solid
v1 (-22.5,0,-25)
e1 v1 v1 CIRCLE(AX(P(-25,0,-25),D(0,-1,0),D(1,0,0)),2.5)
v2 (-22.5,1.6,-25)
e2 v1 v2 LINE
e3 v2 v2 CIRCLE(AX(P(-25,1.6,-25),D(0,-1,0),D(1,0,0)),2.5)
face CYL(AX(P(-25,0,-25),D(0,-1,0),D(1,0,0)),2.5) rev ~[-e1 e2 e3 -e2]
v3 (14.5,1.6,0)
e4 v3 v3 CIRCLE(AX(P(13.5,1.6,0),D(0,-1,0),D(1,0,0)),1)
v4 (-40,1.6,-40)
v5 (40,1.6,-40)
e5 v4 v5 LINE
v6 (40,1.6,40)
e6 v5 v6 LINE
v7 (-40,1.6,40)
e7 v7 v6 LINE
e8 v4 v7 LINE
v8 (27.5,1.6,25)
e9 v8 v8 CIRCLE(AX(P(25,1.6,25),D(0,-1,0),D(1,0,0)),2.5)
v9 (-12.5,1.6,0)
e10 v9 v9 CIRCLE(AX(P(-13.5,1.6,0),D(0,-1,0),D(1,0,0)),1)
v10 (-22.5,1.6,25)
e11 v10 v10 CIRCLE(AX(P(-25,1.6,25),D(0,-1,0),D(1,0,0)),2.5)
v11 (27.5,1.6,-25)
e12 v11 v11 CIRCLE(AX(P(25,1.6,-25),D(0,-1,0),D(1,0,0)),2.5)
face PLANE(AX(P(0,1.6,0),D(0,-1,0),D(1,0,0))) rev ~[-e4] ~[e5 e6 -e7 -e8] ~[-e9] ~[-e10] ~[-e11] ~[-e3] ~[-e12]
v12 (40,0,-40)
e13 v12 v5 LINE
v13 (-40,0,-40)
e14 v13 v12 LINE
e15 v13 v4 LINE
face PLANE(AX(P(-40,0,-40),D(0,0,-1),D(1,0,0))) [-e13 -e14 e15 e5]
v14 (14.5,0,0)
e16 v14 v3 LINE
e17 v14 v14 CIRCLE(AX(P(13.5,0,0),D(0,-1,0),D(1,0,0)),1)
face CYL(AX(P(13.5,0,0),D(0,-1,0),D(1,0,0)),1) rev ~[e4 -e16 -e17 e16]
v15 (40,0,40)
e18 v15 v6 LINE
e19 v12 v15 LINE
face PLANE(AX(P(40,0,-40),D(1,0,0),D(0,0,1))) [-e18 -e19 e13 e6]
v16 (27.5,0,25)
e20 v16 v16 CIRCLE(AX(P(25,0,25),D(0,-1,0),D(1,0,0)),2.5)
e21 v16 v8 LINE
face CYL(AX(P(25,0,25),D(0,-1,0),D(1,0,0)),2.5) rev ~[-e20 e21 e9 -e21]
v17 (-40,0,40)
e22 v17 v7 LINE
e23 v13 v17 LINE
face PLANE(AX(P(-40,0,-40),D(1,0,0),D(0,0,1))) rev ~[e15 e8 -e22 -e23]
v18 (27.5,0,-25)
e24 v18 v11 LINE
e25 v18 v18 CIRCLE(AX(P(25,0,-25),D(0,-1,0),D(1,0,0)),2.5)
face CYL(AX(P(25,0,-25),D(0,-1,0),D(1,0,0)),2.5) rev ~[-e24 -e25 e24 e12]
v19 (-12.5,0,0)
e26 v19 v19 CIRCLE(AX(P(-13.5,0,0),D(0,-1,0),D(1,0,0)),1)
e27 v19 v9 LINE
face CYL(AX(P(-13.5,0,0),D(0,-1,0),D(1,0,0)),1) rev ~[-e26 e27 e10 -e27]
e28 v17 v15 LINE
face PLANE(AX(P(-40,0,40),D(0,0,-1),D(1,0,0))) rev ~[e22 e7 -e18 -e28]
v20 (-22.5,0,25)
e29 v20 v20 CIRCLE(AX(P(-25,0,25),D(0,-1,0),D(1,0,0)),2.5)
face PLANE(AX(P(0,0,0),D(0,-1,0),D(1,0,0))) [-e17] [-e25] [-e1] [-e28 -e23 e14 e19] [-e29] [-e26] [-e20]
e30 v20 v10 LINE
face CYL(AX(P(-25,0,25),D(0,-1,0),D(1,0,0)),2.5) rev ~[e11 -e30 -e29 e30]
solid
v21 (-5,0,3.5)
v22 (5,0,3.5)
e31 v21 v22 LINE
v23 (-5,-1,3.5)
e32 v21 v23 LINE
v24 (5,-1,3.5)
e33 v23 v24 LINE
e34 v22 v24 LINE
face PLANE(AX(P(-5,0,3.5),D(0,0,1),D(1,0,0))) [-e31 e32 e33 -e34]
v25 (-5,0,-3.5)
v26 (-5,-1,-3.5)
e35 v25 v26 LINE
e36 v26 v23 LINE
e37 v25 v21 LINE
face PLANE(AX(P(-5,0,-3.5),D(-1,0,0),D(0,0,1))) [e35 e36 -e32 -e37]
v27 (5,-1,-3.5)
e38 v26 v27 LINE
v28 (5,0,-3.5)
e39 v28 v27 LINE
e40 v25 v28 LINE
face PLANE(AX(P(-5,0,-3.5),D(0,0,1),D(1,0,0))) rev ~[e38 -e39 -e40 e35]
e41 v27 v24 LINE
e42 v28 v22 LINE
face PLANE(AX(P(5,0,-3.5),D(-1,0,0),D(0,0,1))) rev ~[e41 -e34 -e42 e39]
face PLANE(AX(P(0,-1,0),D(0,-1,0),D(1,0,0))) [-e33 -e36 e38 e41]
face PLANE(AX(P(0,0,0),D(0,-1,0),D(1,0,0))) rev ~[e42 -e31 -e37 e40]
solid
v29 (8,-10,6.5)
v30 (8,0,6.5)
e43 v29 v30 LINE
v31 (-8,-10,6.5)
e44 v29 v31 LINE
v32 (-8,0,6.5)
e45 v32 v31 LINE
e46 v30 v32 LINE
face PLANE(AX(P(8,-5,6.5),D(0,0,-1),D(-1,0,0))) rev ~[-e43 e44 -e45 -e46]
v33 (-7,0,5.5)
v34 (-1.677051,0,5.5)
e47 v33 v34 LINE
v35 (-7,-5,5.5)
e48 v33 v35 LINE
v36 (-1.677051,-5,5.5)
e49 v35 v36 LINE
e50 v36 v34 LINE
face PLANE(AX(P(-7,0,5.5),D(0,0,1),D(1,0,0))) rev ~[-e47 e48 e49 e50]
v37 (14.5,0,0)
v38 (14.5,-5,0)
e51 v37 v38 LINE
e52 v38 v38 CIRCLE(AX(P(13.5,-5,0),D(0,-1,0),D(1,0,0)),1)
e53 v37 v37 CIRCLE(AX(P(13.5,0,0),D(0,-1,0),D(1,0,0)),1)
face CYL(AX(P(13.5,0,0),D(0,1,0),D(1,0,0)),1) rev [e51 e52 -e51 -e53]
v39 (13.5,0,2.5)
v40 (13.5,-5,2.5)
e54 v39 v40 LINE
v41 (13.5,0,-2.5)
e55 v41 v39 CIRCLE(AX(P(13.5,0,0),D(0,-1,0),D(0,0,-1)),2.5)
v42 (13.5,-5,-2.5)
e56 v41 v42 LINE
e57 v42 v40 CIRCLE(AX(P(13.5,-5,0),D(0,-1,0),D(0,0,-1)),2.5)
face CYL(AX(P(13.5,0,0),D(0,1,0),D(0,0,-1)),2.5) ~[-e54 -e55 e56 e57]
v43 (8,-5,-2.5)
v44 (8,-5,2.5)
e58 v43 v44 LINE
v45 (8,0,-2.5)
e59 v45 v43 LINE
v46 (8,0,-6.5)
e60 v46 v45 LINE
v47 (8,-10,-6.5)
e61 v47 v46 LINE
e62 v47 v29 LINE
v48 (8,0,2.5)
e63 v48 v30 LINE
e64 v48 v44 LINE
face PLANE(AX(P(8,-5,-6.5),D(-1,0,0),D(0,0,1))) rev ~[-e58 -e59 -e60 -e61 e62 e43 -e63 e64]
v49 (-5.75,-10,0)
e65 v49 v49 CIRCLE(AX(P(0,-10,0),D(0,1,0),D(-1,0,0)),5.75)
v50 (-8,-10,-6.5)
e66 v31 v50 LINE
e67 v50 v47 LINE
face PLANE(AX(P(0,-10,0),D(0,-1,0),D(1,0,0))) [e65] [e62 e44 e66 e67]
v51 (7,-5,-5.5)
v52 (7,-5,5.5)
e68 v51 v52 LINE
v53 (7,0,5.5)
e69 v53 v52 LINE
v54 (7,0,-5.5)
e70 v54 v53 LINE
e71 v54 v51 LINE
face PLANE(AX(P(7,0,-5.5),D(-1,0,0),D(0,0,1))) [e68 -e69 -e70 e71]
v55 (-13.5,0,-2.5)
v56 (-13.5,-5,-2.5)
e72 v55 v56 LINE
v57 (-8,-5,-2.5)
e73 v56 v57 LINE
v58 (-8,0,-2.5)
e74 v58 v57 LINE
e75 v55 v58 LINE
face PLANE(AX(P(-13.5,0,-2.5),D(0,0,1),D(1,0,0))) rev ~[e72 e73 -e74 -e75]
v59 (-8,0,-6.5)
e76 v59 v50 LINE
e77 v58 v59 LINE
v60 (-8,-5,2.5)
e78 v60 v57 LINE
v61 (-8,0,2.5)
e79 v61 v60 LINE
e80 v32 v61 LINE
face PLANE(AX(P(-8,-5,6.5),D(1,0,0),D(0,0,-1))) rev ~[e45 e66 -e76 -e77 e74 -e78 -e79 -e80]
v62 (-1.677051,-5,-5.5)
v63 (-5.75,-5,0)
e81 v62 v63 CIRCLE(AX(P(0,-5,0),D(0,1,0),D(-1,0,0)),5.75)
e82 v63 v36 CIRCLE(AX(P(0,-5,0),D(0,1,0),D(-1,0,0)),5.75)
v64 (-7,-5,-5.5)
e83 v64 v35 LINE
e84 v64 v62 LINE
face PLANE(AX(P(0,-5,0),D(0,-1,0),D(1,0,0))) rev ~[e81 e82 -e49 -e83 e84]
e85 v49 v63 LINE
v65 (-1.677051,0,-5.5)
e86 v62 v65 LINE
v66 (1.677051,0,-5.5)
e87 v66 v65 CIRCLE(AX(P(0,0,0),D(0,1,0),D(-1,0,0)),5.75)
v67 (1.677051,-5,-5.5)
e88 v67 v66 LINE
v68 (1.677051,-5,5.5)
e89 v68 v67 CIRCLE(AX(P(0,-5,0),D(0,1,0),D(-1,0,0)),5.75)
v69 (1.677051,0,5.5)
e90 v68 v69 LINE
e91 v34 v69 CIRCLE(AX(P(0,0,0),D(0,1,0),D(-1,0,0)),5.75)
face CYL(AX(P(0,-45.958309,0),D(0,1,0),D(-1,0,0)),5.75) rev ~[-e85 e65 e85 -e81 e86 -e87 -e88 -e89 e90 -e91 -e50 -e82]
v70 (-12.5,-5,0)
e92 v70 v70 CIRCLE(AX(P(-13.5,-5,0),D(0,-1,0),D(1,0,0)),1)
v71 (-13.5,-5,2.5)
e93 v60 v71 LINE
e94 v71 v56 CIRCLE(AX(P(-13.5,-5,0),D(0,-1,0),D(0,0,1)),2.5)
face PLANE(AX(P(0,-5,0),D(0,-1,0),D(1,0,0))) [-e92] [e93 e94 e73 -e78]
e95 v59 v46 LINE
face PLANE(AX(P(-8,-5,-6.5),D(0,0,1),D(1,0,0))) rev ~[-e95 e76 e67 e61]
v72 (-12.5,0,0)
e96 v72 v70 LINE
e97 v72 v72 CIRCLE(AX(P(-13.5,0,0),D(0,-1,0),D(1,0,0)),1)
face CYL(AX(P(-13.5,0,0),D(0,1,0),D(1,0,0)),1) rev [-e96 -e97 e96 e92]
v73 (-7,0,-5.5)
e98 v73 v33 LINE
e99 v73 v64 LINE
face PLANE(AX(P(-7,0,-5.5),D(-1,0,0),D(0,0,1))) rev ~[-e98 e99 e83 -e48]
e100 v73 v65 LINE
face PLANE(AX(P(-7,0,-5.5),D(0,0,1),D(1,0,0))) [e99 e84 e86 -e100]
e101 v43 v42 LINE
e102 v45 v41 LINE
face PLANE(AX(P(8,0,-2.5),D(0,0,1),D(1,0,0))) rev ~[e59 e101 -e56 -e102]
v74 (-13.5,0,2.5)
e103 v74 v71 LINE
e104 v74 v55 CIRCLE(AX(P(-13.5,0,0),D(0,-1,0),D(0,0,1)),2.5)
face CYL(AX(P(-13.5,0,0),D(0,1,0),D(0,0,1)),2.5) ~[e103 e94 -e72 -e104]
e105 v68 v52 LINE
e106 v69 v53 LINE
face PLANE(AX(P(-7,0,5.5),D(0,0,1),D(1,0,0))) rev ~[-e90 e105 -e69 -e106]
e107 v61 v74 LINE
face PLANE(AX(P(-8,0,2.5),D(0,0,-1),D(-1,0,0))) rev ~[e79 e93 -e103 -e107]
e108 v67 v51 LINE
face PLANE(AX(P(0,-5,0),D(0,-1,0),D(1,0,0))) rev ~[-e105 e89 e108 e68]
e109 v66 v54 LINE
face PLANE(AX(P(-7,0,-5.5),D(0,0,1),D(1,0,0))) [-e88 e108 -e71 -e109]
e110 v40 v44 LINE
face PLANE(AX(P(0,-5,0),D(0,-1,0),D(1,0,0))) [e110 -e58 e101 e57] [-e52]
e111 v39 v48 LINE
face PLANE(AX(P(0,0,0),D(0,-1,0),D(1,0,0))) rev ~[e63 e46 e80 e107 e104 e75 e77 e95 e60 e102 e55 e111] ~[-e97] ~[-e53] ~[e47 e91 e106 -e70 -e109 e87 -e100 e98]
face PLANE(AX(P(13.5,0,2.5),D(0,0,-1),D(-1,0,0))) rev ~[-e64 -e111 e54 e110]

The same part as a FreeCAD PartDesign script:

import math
import FreeCAD as App
import Part
import Sketcher
Q = App.Units.Quantity


def add_polygon(sketch, points):
    """Adds a closed chain of lines whose ends are joined by coincident constraints."""
    first, n = sketch.GeometryCount, len(points)
    for a, b in zip(points, points[1:] + points[:1]):
        sketch.addGeometry(Part.LineSegment(App.Vector(*a, 0), App.Vector(*b, 0)), False)
    for i in range(n):
        sketch.addConstraint(Sketcher.Constraint("Coincident", first + i, 2, first + (i + 1) % n, 1))

doc = App.newDocument("Part")
params = doc.addObject("Spreadsheet::Sheet", "Params")
for row, (alias, value) in enumerate([
    ("sketch1_diameter", "5 mm"),
    ("sketch1_diameter2", "2 mm"),
    ("sketch1_width", "80 mm"),
    ("pad1_length", "1.6 mm"),
    ("sketch2_width", "10 mm"),
    ("sketch2_height", "7 mm"),
    ("pad2_length", "1 mm"),
    ("sketch3_diameter", "2 mm"),
    ("sketch3_radius", "2.5 mm"),
    ("sketch3_width", "16 mm"),
    ("sketch3_width2", "14 mm"),
    ("sketch3_height", "4 mm"),
    ("pad3_length", "5 mm"),
    ("sketch4_width", "16 mm"),
    ("sketch4_height", "13 mm"),
    ("pad4_length", "5 mm"),
    ("sketch5_diameter", "11.5 mm"),
    ("hole_diameter", "11.5 mm"),
], start=1):
    params.set(f"A{row}", alias)
    params.set(f"B{row}", "=" + value)
    params.setAlias(f"B{row}", alias)

body = doc.addObject("PartDesign::Body", "Body")

# Sketch on XZ plane
sketch1 = doc.addObject("Sketcher::SketchObject", "Sketch")
body.addObject(sketch1)
sketch1.AttachmentSupport = (doc.XZ_Plane, [""])
sketch1.MapMode = "FlatFace"
add_polygon(sketch1, [(-40, 40), (-40, -40), (40, -40), (40, 40)])  # lines 0-3
sketch1.addGeometry(Part.Circle(App.Vector(-25, -25, 0), App.Vector(0, 0, 1), 2.5), False)  # 4
sketch1.addGeometry(Part.Circle(App.Vector(25, -25, 0), App.Vector(0, 0, 1), 2.5), False)  # 5
sketch1.addGeometry(Part.Circle(App.Vector(-13.5, 0, 0), App.Vector(0, 0, 1), 1), False)  # 6
sketch1.addGeometry(Part.Circle(App.Vector(-25, 25, 0), App.Vector(0, 0, 1), 2.5), False)  # 7
sketch1.addGeometry(Part.Circle(App.Vector(13.5, 0, 0), App.Vector(0, 0, 1), 1), False)  # 8
sketch1.addGeometry(Part.Circle(App.Vector(25, 25, 0), App.Vector(0, 0, 1), 2.5), False)  # 9
sketch1.addConstraint(Sketcher.Constraint("Vertical", 0))
sketch1.addConstraint(Sketcher.Constraint("Horizontal", 1))
sketch1.addConstraint(Sketcher.Constraint("Vertical", 2))
sketch1.addConstraint(Sketcher.Constraint("Horizontal", 3))
sketch1.addConstraint(Sketcher.Constraint("Equal", 4, 5))
sketch1.addConstraint(Sketcher.Constraint("Equal", 5, 7))
sketch1.addConstraint(Sketcher.Constraint("Equal", 6, 8))
sketch1.addConstraint(Sketcher.Constraint("Equal", 7, 9))
sketch1.addConstraint(Sketcher.Constraint("Symmetric", 5, 3, 7, 3, -1, 1))
sketch1.addConstraint(Sketcher.Constraint("Symmetric", 6, 3, 8, 3, -1, 1))
sketch1.addConstraint(Sketcher.Constraint("Symmetric", 4, 3, 9, 3, -1, 1))
sketch1.addConstraint(Sketcher.Constraint("Symmetric", 0, 2, 2, 2, -1, 1))
sketch1.addConstraint(Sketcher.Constraint("Symmetric", 4, 3, 5, 3, -2))
sketch1.addConstraint(Sketcher.Constraint("PointOnObject", 6, 3, -1))
sketch1.addConstraint(Sketcher.Constraint("Equal", 3, 0))
sketch1.addConstraint(Sketcher.Constraint("Diameter", 4, Q("5 mm")))
sketch1.addConstraint(Sketcher.Constraint("Diameter", 6, Q("2 mm")))
sketch1.addConstraint(Sketcher.Constraint("DistanceX", 1, 1, 1, 2, Q("80 mm")))
sketch1.addConstraint(Sketcher.Constraint("DistanceX", 4, 3, -1, 1, Q("25 mm")))
sketch1.addConstraint(Sketcher.Constraint("DistanceY", 4, 3, -1, 1, Q("25 mm")))
sketch1.addConstraint(Sketcher.Constraint("DistanceX", 6, 3, 8, 3, Q("27 mm")))
sketch1.setExpression("Constraints[19]", "Params.sketch1_diameter")
sketch1.setExpression("Constraints[20]", "Params.sketch1_diameter2")
sketch1.setExpression("Constraints[21]", "Params.sketch1_width")
pad1 = doc.addObject("PartDesign::Pad", "Pad")
body.addObject(pad1)
pad1.Profile = sketch1
pad1.setExpression("Length", "Params.pad1_length")
pad1.Reversed = True
body2 = doc.addObject("PartDesign::Body", "Body001")

# Sketch on XZ plane
sketch2 = doc.addObject("Sketcher::SketchObject", "Sketch001")
body2.addObject(sketch2)
sketch2.AttachmentSupport = (doc.getObject("XZ_Plane001"), [""])
sketch2.MapMode = "FlatFace"
add_polygon(sketch2, [(-5, 4), (-5, -4), (5, -4), (5, 4)])  # lines 0-3
sketch2.addConstraint(Sketcher.Constraint("Vertical", 0))
sketch2.addConstraint(Sketcher.Constraint("Horizontal", 1))
sketch2.addConstraint(Sketcher.Constraint("Vertical", 2))
sketch2.addConstraint(Sketcher.Constraint("Horizontal", 3))
sketch2.addConstraint(Sketcher.Constraint("Symmetric", 0, 2, 2, 2, -1, 1))
sketch2.addConstraint(Sketcher.Constraint("DistanceX", 1, 1, 1, 2, Q("10 mm")))
sketch2.addConstraint(Sketcher.Constraint("DistanceY", 0, 2, 0, 1, Q("7 mm")))
sketch2.setExpression("Constraints[9]", "Params.sketch2_width")
sketch2.setExpression("Constraints[10]", "Params.sketch2_height")
pad2 = doc.addObject("PartDesign::Pad", "Pad001")
body2.addObject(pad2)
pad2.Profile = sketch2
pad2.setExpression("Length", "Params.pad2_length")
body3 = doc.addObject("PartDesign::Body", "Body002")

# Sketch on XZ plane
sketch3 = doc.addObject("Sketcher::SketchObject", "Sketch002")
body3.addObject(sketch3)
sketch3.AttachmentSupport = (doc.getObject("XZ_Plane002"), [""])
sketch3.MapMode = "FlatFace"
sketch3.addGeometry(Part.LineSegment(App.Vector(8, -2.5, 0), App.Vector(13.5, -2.5, 0)), False)  # 0
sketch3.addGeometry(Part.ArcOfCircle(Part.Circle(App.Vector(13.5, 0, 0), App.Vector(0, 0, 1), 2.5), math.radians(-90), math.radians(90)), False)  # 1
sketch3.addGeometry(Part.LineSegment(App.Vector(13.5, 2.5, 0), App.Vector(8, 2.5, 0)), False)  # 2
sketch3.addGeometry(Part.LineSegment(App.Vector(8, 2.5, 0), App.Vector(8, 6.5, 0)), False)  # 3
sketch3.addGeometry(Part.LineSegment(App.Vector(8, 6.5, 0), App.Vector(-8, 6.5, 0)), False)  # 4
sketch3.addGeometry(Part.LineSegment(App.Vector(-8, 6.5, 0), App.Vector(-8, 2.5, 0)), False)  # 5
sketch3.addGeometry(Part.LineSegment(App.Vector(-8, 2.5, 0), App.Vector(-13.5, 2.5, 0)), False)  # 6
sketch3.addGeometry(Part.ArcOfCircle(Part.Circle(App.Vector(-13.5, 0, 0), App.Vector(0, 0, 1), 2.5), math.radians(90), math.radians(270)), False)  # 7
sketch3.addGeometry(Part.LineSegment(App.Vector(-13.5, -2.5, 0), App.Vector(-8, -2.5, 0)), False)  # 8
sketch3.addGeometry(Part.LineSegment(App.Vector(-8, -2.5, 0), App.Vector(-8, -6.5, 0)), False)  # 9
sketch3.addGeometry(Part.LineSegment(App.Vector(-8, -6.5, 0), App.Vector(8, -6.5, 0)), False)  # 10
sketch3.addGeometry(Part.LineSegment(App.Vector(8, -6.5, 0), App.Vector(8, -2.5, 0)), False)  # 11
sketch3.addGeometry(Part.Circle(App.Vector(-13.5, 0, 0), App.Vector(0, 0, 1), 1), False)  # 12
add_polygon(sketch3, [(7, -5.5), (-7, -5.5), (-7, 5.5), (7, 5.5)])  # lines 13-16
sketch3.addGeometry(Part.Circle(App.Vector(13.5, 0, 0), App.Vector(0, 0, 1), 1), False)  # 17
sketch3.addConstraint(Sketcher.Constraint("Tangent", 0, 2, 1, 1))
sketch3.addConstraint(Sketcher.Constraint("Tangent", 1, 2, 2, 1))
sketch3.addConstraint(Sketcher.Constraint("Coincident", 2, 2, 3, 1))
sketch3.addConstraint(Sketcher.Constraint("Coincident", 3, 2, 4, 1))
sketch3.addConstraint(Sketcher.Constraint("Coincident", 4, 2, 5, 1))
sketch3.addConstraint(Sketcher.Constraint("Coincident", 5, 2, 6, 1))
sketch3.addConstraint(Sketcher.Constraint("Tangent", 6, 2, 7, 1))
sketch3.addConstraint(Sketcher.Constraint("Tangent", 7, 2, 8, 1))
sketch3.addConstraint(Sketcher.Constraint("Coincident", 8, 2, 9, 1))
sketch3.addConstraint(Sketcher.Constraint("Coincident", 9, 2, 10, 1))
sketch3.addConstraint(Sketcher.Constraint("Coincident", 10, 2, 11, 1))
sketch3.addConstraint(Sketcher.Constraint("Coincident", 11, 2, 0, 1))
sketch3.addConstraint(Sketcher.Constraint("Horizontal", 0))
sketch3.addConstraint(Sketcher.Constraint("Horizontal", 2))
sketch3.addConstraint(Sketcher.Constraint("Vertical", 3))
sketch3.addConstraint(Sketcher.Constraint("Horizontal", 4))
sketch3.addConstraint(Sketcher.Constraint("Vertical", 5))
sketch3.addConstraint(Sketcher.Constraint("Horizontal", 6))
sketch3.addConstraint(Sketcher.Constraint("Horizontal", 8))
sketch3.addConstraint(Sketcher.Constraint("Vertical", 9))
sketch3.addConstraint(Sketcher.Constraint("Horizontal", 10))
sketch3.addConstraint(Sketcher.Constraint("Vertical", 11))
sketch3.addConstraint(Sketcher.Constraint("Horizontal", 13))
sketch3.addConstraint(Sketcher.Constraint("Vertical", 14))
sketch3.addConstraint(Sketcher.Constraint("Horizontal", 15))
sketch3.addConstraint(Sketcher.Constraint("Vertical", 16))
sketch3.addConstraint(Sketcher.Constraint("Coincident", 12, 3, 7, 3))
sketch3.addConstraint(Sketcher.Constraint("Coincident", 17, 3, 1, 3))
sketch3.addConstraint(Sketcher.Constraint("Equal", 1, 7))
sketch3.addConstraint(Sketcher.Constraint("Equal", 12, 17))
sketch3.addConstraint(Sketcher.Constraint("Symmetric", 1, 3, 7, 3, -1, 1))
sketch3.addConstraint(Sketcher.Constraint("Symmetric", 3, 2, 9, 2, -1, 1))
sketch3.addConstraint(Sketcher.Constraint("Symmetric", 13, 2, 15, 2, -1, 1))
sketch3.addConstraint(Sketcher.Constraint("Symmetric", 2, 2, 5, 2, -2))
sketch3.addConstraint(Sketcher.Constraint("Vertical", 3, 2, 10, 2))
sketch3.addConstraint(Sketcher.Constraint("Diameter", 12, Q("2 mm")))
sketch3.addConstraint(Sketcher.Constraint("Radius", 1, Q("2.5 mm")))
sketch3.addConstraint(Sketcher.Constraint("DistanceX", 4, 2, 4, 1, Q("16 mm")))
sketch3.addConstraint(Sketcher.Constraint("DistanceX", 13, 2, 13, 1, Q("14 mm")))
sketch3.addConstraint(Sketcher.Constraint("DistanceY", 3, 1, 3, 2, Q("4 mm")))
sketch3.addConstraint(Sketcher.Constraint("DistanceY", 14, 1, 14, 2, Q("11 mm")))
sketch3.addConstraint(Sketcher.Constraint("DistanceX", 0, 1, 0, 2, Q("5.5 mm")))
sketch3.setExpression("Constraints[39]", "Params.sketch3_diameter")
sketch3.setExpression("Constraints[40]", "Params.sketch3_radius")
sketch3.setExpression("Constraints[41]", "Params.sketch3_width")
sketch3.setExpression("Constraints[42]", "Params.sketch3_width2")
sketch3.setExpression("Constraints[43]", "Params.sketch3_height")
pad3 = doc.addObject("PartDesign::Pad", "Pad002")
body3.addObject(pad3)
pad3.Profile = sketch3
pad3.setExpression("Length", "Params.pad3_length")

# Sketch on XZ plane
sketch4 = doc.addObject("Sketcher::SketchObject", "Sketch003")
body3.addObject(sketch4)
sketch4.AttachmentSupport = (doc.getObject("XZ_Plane002"), [""])
sketch4.MapMode = "FlatFace"
sketch4.AttachmentOffset = App.Placement(App.Vector(0, 0, 5), App.Rotation())
add_polygon(sketch4, [(8, 6), (-8, 6), (-8, -6), (8, -6)])  # lines 0-3
sketch4.addConstraint(Sketcher.Constraint("Horizontal", 0))
sketch4.addConstraint(Sketcher.Constraint("Vertical", 1))
sketch4.addConstraint(Sketcher.Constraint("Horizontal", 2))
sketch4.addConstraint(Sketcher.Constraint("Vertical", 3))
sketch4.addConstraint(Sketcher.Constraint("Symmetric", 0, 2, 2, 2, -1, 1))
sketch4.addConstraint(Sketcher.Constraint("DistanceX", 0, 2, 0, 1, Q("16 mm")))
sketch4.addConstraint(Sketcher.Constraint("DistanceY", 1, 2, 1, 1, Q("13 mm")))
sketch4.setExpression("Constraints[9]", "Params.sketch4_width")
sketch4.setExpression("Constraints[10]", "Params.sketch4_height")
pad4 = doc.addObject("PartDesign::Pad", "Pad003")
body3.addObject(pad4)
pad4.Profile = sketch4
pad4.setExpression("Length", "Params.pad4_length")

# Sketch on XZ plane
sketch5 = doc.addObject("Sketcher::SketchObject", "Sketch004")
body3.addObject(sketch5)
sketch5.AttachmentSupport = (doc.getObject("XZ_Plane002"), [""])
sketch5.MapMode = "FlatFace"
sketch5.AttachmentOffset = App.Placement(App.Vector(0, 0, 10), App.Rotation())
sketch5.addGeometry(Part.Circle(App.Vector(0, 0, 0), App.Vector(0, 0, 1), 6), False)
sketch5.addConstraint(Sketcher.Constraint("Coincident", 0, 3, -1, 1))
sketch5.addConstraint(Sketcher.Constraint("Diameter", 0, Q("11.5 mm")))
sketch5.setExpression("Constraints[1]", "Params.sketch5_diameter")
doc.recompute()
hole = doc.addObject("PartDesign::Hole", "Hole")
body3.addObject(hole)
hole.Profile = sketch5
hole.ThreadType = "None"
hole.setExpression("Diameter", "Params.hole_diameter")
hole.DepthType = "ThroughAll"

doc.recompute()
